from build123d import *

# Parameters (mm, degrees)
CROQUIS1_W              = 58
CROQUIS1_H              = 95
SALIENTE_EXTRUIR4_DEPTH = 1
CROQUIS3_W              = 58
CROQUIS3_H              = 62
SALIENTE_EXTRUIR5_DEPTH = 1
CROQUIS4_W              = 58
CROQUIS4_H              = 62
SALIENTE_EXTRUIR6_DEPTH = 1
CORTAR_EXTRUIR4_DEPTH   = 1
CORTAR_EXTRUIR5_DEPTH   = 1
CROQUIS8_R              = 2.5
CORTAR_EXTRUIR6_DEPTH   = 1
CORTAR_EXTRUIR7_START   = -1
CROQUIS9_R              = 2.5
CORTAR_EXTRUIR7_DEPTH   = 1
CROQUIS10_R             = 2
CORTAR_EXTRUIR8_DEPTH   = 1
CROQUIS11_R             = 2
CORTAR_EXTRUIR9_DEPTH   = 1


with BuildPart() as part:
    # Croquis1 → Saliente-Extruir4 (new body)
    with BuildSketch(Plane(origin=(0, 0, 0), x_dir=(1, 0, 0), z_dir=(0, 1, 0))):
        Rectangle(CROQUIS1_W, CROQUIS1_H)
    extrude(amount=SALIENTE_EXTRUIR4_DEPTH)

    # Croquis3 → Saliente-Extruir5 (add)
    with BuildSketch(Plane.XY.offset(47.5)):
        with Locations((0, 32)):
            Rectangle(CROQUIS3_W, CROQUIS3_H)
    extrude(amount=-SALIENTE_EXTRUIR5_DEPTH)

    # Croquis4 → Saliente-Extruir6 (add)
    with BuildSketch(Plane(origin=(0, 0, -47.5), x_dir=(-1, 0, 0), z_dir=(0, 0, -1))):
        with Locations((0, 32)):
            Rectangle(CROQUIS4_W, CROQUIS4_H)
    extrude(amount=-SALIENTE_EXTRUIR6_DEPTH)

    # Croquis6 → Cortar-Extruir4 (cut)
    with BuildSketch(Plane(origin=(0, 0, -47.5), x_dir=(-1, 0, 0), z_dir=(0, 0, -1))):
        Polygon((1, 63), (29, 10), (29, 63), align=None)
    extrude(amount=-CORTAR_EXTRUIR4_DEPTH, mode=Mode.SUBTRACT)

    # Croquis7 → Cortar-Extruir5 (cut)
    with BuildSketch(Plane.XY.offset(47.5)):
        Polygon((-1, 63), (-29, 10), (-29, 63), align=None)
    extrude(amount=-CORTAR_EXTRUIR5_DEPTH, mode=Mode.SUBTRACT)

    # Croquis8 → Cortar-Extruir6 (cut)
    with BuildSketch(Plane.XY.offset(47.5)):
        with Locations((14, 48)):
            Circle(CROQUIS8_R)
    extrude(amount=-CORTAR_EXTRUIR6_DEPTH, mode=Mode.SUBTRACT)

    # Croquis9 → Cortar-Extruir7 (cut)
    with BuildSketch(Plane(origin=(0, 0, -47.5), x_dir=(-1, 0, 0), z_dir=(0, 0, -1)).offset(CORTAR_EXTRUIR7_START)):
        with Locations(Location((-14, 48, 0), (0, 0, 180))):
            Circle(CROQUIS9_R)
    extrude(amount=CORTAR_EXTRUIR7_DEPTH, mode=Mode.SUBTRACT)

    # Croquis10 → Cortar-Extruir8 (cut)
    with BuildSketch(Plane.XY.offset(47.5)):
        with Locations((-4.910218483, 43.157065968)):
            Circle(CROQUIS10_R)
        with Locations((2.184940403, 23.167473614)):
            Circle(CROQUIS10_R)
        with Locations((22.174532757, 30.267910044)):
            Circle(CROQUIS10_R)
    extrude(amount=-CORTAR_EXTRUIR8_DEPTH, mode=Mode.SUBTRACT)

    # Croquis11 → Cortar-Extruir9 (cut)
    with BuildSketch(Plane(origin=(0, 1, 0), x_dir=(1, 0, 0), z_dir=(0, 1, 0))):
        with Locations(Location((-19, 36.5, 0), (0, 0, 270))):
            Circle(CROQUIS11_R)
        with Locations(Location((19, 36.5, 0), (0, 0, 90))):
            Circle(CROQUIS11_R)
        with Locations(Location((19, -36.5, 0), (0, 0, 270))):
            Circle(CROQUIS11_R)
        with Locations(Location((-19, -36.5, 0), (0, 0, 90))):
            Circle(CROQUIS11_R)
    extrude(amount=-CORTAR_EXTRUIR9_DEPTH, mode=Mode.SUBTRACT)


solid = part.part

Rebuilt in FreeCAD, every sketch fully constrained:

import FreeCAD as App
import Part
import Sketcher
Q = App.Units.Quantity


def add_polygon(sketch, points):
    """Adds a closed chain of lines whose ends are joined by coincident constraints."""
    first, n = sketch.GeometryCount, len(points)
    for a, b in zip(points, points[1:] + points[:1]):
        sketch.addGeometry(Part.LineSegment(App.Vector(*a, 0), App.Vector(*b, 0)), False)
    for i in range(n):
        sketch.addConstraint(Sketcher.Constraint("Coincident", first + i, 2, first + (i + 1) % n, 1))

doc = App.newDocument("Part")
body = doc.addObject("PartDesign::Body", "Body")

# Sketch on XZ plane
sketch1 = doc.addObject("Sketcher::SketchObject", "Sketch")
body.addObject(sketch1)
sketch1.AttachmentSupport = (doc.XZ_Plane, [""])
sketch1.MapMode = "FlatFace"
add_polygon(sketch1, [(-29, -48), (-29, 48), (29, 48), (29, -48)])  # lines 0-3
sketch1.addConstraint(Sketcher.Constraint("Vertical", 0))
sketch1.addConstraint(Sketcher.Constraint("Horizontal", 1))
sketch1.addConstraint(Sketcher.Constraint("Vertical", 2))
sketch1.addConstraint(Sketcher.Constraint("Horizontal", 3))
sketch1.addConstraint(Sketcher.Constraint("Symmetric", 0, 2, 2, 2, -1, 1))
sketch1.addConstraint(Sketcher.Constraint("DistanceX", 1, 1, 1, 2, Q("58 mm")))
sketch1.addConstraint(Sketcher.Constraint("DistanceY", 0, 1, 0, 2, Q("95 mm")))
pad1 = doc.addObject("PartDesign::Pad", "Pad")
body.addObject(pad1)
pad1.Profile = sketch1
pad1.Length = 1
pad1.Reversed = True

# Sketch on XY plane
sketch2 = doc.addObject("Sketcher::SketchObject", "Sketch001")
body.addObject(sketch2)
sketch2.AttachmentSupport = (doc.XY_Plane, [""])
sketch2.MapMode = "FlatFace"
sketch2.AttachmentOffset = App.Placement(App.Vector(0, 0, 47.5), App.Rotation())
add_polygon(sketch2, [(-29, 63), (-29, 1), (29, 1), (29, 63)])  # lines 0-3
sketch2.addConstraint(Sketcher.Constraint("Vertical", 0))
sketch2.addConstraint(Sketcher.Constraint("Horizontal", 1))
sketch2.addConstraint(Sketcher.Constraint("Vertical", 2))
sketch2.addConstraint(Sketcher.Constraint("Horizontal", 3))
sketch2.addConstraint(Sketcher.Constraint("DistanceX", 1, 1, 1, 2, Q("58 mm")))
sketch2.addConstraint(Sketcher.Constraint("DistanceY", 0, 2, 0, 1, Q("62 mm")))
sketch2.addConstraint(Sketcher.Constraint("DistanceX", 0, 2, -1, 1, Q("29 mm")))
sketch2.addConstraint(Sketcher.Constraint("DistanceY", -1, 1, 0, 2, Q("1 mm")))
pad2 = doc.addObject("PartDesign::Pad", "Pad001")
body.addObject(pad2)
pad2.Profile = sketch2
pad2.Length = 1
pad2.Reversed = True

# Sketch on XY plane
sketch3 = doc.addObject("Sketcher::SketchObject", "Sketch002")
body.addObject(sketch3)
sketch3.AttachmentSupport = (doc.XY_Plane, [""])
sketch3.MapMode = "FlatFace"
sketch3.AttachmentOffset = App.Placement(App.Vector(0, 0, -47.5), App.Rotation())
add_polygon(sketch3, [(29, 63), (29, 1), (-29, 1), (-29, 63)])  # lines 0-3
sketch3.addConstraint(Sketcher.Constraint("Vertical", 0))
sketch3.addConstraint(Sketcher.Constraint("Horizontal", 1))
sketch3.addConstraint(Sketcher.Constraint("Vertical", 2))
sketch3.addConstraint(Sketcher.Constraint("Horizontal", 3))
sketch3.addConstraint(Sketcher.Constraint("DistanceX", 1, 2, 1, 1, Q("58 mm")))
sketch3.addConstraint(Sketcher.Constraint("DistanceY", 0, 2, 0, 1, Q("62 mm")))
sketch3.addConstraint(Sketcher.Constraint("DistanceX", -1, 1, 0, 2, Q("29 mm")))
sketch3.addConstraint(Sketcher.Constraint("DistanceY", -1, 1, 0, 2, Q("1 mm")))
pad3 = doc.addObject("PartDesign::Pad", "Pad002")
body.addObject(pad3)
pad3.Profile = sketch3
pad3.Length = 1

# Sketch on XY plane
sketch4 = doc.addObject("Sketcher::SketchObject", "Sketch003")
body.addObject(sketch4)
sketch4.AttachmentSupport = (doc.XY_Plane, [""])
sketch4.MapMode = "FlatFace"
sketch4.AttachmentOffset = App.Placement(App.Vector(0, 0, -47.5), App.Rotation())
add_polygon(sketch4, [(-1, 63), (-29, 10), (-29, 63)])  # lines 0-2
sketch4.addConstraint(Sketcher.Constraint("Vertical", 1))
sketch4.addConstraint(Sketcher.Constraint("Horizontal", 2))
sketch4.addConstraint(Sketcher.Constraint("DistanceX", 2, 1, 2, 2, Q("28 mm")))
sketch4.addConstraint(Sketcher.Constraint("DistanceY", 1, 1, 1, 2, Q("53 mm")))
sketch4.addConstraint(Sketcher.Constraint("DistanceX", 0, 2, -1, 1, Q("29 mm")))
sketch4.addConstraint(Sketcher.Constraint("DistanceY", -1, 1, 0, 2, Q("10 mm")))
pocket1 = doc.addObject("PartDesign::Pocket", "Pocket")
body.addObject(pocket1)
pocket1.Profile = sketch4
pocket1.Length = 1
pocket1.Reversed = True

# Sketch on XY plane
sketch5 = doc.addObject("Sketcher::SketchObject", "Sketch004")
body.addObject(sketch5)
sketch5.AttachmentSupport = (doc.XY_Plane, [""])
sketch5.MapMode = "FlatFace"
sketch5.AttachmentOffset = App.Placement(App.Vector(0, 0, 47.5), App.Rotation())
add_polygon(sketch5, [(-29, 10), (-1, 63), (-29, 63)])  # lines 0-2
sketch5.addConstraint(Sketcher.Constraint("Horizontal", 1))
sketch5.addConstraint(Sketcher.Constraint("Vertical", 2))
sketch5.addConstraint(Sketcher.Constraint("DistanceX", 1, 2, 1, 1, Q("28 mm")))
sketch5.addConstraint(Sketcher.Constraint("DistanceY", 2, 2, 2, 1, Q("53 mm")))
sketch5.addConstraint(Sketcher.Constraint("DistanceX", 0, 2, -1, 1, Q("1 mm")))
sketch5.addConstraint(Sketcher.Constraint("DistanceY", -1, 1, 0, 2, Q("63 mm")))
pocket2 = doc.addObject("PartDesign::Pocket", "Pocket001")
body.addObject(pocket2)
pocket2.Profile = sketch5
pocket2.Length = 1

# Sketch on XY plane
sketch6 = doc.addObject("Sketcher::SketchObject", "Sketch005")
body.addObject(sketch6)
sketch6.AttachmentSupport = (doc.XY_Plane, [""])
sketch6.MapMode = "FlatFace"
sketch6.AttachmentOffset = App.Placement(App.Vector(0, 0, 47.5), App.Rotation())
sketch6.addGeometry(Part.Circle(App.Vector(14, 48, 0), App.Vector(0, 0, 1), 2.5), False)
sketch6.addConstraint(Sketcher.Constraint("Diameter", 0, Q("5 mm")))
sketch6.addConstraint(Sketcher.Constraint("DistanceX", -1, 1, 0, 3, Q("14 mm")))
sketch6.addConstraint(Sketcher.Constraint("DistanceY", -1, 1, 0, 3, Q("48 mm")))
pocket3 = doc.addObject("PartDesign::Pocket", "Pocket002")
body.addObject(pocket3)
pocket3.Profile = sketch6
pocket3.Length = 1

# Sketch on XY plane
sketch7 = doc.addObject("Sketcher::SketchObject", "Sketch006")
body.addObject(sketch7)
sketch7.AttachmentSupport = (doc.XY_Plane, [""])
sketch7.MapMode = "FlatFace"
sketch7.AttachmentOffset = App.Placement(App.Vector(0, 0, -46.5), App.Rotation())
sketch7.addGeometry(Part.Circle(App.Vector(14, 48, 0), App.Vector(0, 0, 1), 2.5), False)
sketch7.addConstraint(Sketcher.Constraint("Diameter", 0, Q("5 mm")))
sketch7.addConstraint(Sketcher.Constraint("DistanceX", -1, 1, 0, 3, Q("14 mm")))
sketch7.addConstraint(Sketcher.Constraint("DistanceY", -1, 1, 0, 3, Q("48 mm")))
pocket4 = doc.addObject("PartDesign::Pocket", "Pocket003")
body.addObject(pocket4)
pocket4.Profile = sketch7
pocket4.Length = 1

# Sketch on XY plane
sketch8 = doc.addObject("Sketcher::SketchObject", "Sketch007")
body.addObject(sketch8)
sketch8.AttachmentSupport = (doc.XY_Plane, [""])
sketch8.MapMode = "FlatFace"
sketch8.AttachmentOffset = App.Placement(App.Vector(0, 0, 47.5), App.Rotation())
sketch8.addGeometry(Part.Circle(App.Vector(-4.9, 43.2, 0), App.Vector(0, 0, 1), 2), False)
sketch8.addGeometry(Part.Circle(App.Vector(2.2, 23.2, 0), App.Vector(0, 0, 1), 2), False)
sketch8.addGeometry(Part.Circle(App.Vector(22.2, 30.3, 0), App.Vector(0, 0, 1), 2), False)
sketch8.addConstraint(Sketcher.Constraint("Equal", 0, 1))
sketch8.addConstraint(Sketcher.Constraint("Equal", 1, 2))
sketch8.addConstraint(Sketcher.Constraint("Diameter", 0, Q("4 mm")))
sketch8.addConstraint(Sketcher.Constraint("DistanceX", 0, 3, -1, 1, Q("4.910218 mm")))
sketch8.addConstraint(Sketcher.Constraint("DistanceX", -1, 1, 1, 3, Q("2.18494 mm")))
sketch8.addConstraint(Sketcher.Constraint("DistanceY", -1, 1, 2, 3, Q("30.26791 mm")))
sketch8.addConstraint(Sketcher.Constraint("DistanceX", 0, 3, 2, 3, Q("27.084751 mm")))
sketch8.addConstraint(Sketcher.Constraint("DistanceY", -1, 1, 0, 3, Q("43.157066 mm")))
sketch8.addConstraint(Sketcher.Constraint("DistanceY", -1, 1, 1, 3, Q("23.167474 mm")))
pocket5 = doc.addObject("PartDesign::Pocket", "Pocket004")
body.addObject(pocket5)
pocket5.Profile = sketch8
pocket5.Length = 1

# Sketch on XZ plane
sketch9 = doc.addObject("Sketcher::SketchObject", "Sketch008")
body.addObject(sketch9)
sketch9.AttachmentSupport = (doc.XZ_Plane, [""])
sketch9.MapMode = "FlatFace"
sketch9.AttachmentOffset = App.Placement(App.Vector(0, 0, -1), App.Rotation())
sketch9.addGeometry(Part.Circle(App.Vector(-19, -36.5, 0), App.Vector(0, 0, 1), 2), False)
sketch9.addGeometry(Part.Circle(App.Vector(19, -36.5, 0), App.Vector(0, 0, 1), 2), False)
sketch9.addGeometry(Part.Circle(App.Vector(19, 36.5, 0), App.Vector(0, 0, 1), 2), False)
sketch9.addGeometry(Part.Circle(App.Vector(-19, 36.5, 0), App.Vector(0, 0, 1), 2), False)
sketch9.addConstraint(Sketcher.Constraint("Equal", 0, 1))
sketch9.addConstraint(Sketcher.Constraint("Equal", 1, 2))
sketch9.addConstraint(Sketcher.Constraint("Equal", 2, 3))
sketch9.addConstraint(Sketcher.Constraint("Symmetric", 0, 3, 2, 3, -1, 1))
sketch9.addConstraint(Sketcher.Constraint("Symmetric", 1, 3, 3, 3, -1, 1))
sketch9.addConstraint(Sketcher.Constraint("Symmetric", 0, 3, 1, 3, -2))
sketch9.addConstraint(Sketcher.Constraint("Diameter", 0, Q("4 mm")))
sketch9.addConstraint(Sketcher.Constraint("DistanceX", 0, 3, -1, 1, Q("19 mm")))
sketch9.addConstraint(Sketcher.Constraint("DistanceY", 1, 3, 2, 3, Q("73 mm")))
pocket6 = doc.addObject("PartDesign::Pocket", "Pocket005")
body.addObject(pocket6)
pocket6.Profile = sketch9
pocket6.Length = 1
pocket6.Reversed = True

doc.recompute()
